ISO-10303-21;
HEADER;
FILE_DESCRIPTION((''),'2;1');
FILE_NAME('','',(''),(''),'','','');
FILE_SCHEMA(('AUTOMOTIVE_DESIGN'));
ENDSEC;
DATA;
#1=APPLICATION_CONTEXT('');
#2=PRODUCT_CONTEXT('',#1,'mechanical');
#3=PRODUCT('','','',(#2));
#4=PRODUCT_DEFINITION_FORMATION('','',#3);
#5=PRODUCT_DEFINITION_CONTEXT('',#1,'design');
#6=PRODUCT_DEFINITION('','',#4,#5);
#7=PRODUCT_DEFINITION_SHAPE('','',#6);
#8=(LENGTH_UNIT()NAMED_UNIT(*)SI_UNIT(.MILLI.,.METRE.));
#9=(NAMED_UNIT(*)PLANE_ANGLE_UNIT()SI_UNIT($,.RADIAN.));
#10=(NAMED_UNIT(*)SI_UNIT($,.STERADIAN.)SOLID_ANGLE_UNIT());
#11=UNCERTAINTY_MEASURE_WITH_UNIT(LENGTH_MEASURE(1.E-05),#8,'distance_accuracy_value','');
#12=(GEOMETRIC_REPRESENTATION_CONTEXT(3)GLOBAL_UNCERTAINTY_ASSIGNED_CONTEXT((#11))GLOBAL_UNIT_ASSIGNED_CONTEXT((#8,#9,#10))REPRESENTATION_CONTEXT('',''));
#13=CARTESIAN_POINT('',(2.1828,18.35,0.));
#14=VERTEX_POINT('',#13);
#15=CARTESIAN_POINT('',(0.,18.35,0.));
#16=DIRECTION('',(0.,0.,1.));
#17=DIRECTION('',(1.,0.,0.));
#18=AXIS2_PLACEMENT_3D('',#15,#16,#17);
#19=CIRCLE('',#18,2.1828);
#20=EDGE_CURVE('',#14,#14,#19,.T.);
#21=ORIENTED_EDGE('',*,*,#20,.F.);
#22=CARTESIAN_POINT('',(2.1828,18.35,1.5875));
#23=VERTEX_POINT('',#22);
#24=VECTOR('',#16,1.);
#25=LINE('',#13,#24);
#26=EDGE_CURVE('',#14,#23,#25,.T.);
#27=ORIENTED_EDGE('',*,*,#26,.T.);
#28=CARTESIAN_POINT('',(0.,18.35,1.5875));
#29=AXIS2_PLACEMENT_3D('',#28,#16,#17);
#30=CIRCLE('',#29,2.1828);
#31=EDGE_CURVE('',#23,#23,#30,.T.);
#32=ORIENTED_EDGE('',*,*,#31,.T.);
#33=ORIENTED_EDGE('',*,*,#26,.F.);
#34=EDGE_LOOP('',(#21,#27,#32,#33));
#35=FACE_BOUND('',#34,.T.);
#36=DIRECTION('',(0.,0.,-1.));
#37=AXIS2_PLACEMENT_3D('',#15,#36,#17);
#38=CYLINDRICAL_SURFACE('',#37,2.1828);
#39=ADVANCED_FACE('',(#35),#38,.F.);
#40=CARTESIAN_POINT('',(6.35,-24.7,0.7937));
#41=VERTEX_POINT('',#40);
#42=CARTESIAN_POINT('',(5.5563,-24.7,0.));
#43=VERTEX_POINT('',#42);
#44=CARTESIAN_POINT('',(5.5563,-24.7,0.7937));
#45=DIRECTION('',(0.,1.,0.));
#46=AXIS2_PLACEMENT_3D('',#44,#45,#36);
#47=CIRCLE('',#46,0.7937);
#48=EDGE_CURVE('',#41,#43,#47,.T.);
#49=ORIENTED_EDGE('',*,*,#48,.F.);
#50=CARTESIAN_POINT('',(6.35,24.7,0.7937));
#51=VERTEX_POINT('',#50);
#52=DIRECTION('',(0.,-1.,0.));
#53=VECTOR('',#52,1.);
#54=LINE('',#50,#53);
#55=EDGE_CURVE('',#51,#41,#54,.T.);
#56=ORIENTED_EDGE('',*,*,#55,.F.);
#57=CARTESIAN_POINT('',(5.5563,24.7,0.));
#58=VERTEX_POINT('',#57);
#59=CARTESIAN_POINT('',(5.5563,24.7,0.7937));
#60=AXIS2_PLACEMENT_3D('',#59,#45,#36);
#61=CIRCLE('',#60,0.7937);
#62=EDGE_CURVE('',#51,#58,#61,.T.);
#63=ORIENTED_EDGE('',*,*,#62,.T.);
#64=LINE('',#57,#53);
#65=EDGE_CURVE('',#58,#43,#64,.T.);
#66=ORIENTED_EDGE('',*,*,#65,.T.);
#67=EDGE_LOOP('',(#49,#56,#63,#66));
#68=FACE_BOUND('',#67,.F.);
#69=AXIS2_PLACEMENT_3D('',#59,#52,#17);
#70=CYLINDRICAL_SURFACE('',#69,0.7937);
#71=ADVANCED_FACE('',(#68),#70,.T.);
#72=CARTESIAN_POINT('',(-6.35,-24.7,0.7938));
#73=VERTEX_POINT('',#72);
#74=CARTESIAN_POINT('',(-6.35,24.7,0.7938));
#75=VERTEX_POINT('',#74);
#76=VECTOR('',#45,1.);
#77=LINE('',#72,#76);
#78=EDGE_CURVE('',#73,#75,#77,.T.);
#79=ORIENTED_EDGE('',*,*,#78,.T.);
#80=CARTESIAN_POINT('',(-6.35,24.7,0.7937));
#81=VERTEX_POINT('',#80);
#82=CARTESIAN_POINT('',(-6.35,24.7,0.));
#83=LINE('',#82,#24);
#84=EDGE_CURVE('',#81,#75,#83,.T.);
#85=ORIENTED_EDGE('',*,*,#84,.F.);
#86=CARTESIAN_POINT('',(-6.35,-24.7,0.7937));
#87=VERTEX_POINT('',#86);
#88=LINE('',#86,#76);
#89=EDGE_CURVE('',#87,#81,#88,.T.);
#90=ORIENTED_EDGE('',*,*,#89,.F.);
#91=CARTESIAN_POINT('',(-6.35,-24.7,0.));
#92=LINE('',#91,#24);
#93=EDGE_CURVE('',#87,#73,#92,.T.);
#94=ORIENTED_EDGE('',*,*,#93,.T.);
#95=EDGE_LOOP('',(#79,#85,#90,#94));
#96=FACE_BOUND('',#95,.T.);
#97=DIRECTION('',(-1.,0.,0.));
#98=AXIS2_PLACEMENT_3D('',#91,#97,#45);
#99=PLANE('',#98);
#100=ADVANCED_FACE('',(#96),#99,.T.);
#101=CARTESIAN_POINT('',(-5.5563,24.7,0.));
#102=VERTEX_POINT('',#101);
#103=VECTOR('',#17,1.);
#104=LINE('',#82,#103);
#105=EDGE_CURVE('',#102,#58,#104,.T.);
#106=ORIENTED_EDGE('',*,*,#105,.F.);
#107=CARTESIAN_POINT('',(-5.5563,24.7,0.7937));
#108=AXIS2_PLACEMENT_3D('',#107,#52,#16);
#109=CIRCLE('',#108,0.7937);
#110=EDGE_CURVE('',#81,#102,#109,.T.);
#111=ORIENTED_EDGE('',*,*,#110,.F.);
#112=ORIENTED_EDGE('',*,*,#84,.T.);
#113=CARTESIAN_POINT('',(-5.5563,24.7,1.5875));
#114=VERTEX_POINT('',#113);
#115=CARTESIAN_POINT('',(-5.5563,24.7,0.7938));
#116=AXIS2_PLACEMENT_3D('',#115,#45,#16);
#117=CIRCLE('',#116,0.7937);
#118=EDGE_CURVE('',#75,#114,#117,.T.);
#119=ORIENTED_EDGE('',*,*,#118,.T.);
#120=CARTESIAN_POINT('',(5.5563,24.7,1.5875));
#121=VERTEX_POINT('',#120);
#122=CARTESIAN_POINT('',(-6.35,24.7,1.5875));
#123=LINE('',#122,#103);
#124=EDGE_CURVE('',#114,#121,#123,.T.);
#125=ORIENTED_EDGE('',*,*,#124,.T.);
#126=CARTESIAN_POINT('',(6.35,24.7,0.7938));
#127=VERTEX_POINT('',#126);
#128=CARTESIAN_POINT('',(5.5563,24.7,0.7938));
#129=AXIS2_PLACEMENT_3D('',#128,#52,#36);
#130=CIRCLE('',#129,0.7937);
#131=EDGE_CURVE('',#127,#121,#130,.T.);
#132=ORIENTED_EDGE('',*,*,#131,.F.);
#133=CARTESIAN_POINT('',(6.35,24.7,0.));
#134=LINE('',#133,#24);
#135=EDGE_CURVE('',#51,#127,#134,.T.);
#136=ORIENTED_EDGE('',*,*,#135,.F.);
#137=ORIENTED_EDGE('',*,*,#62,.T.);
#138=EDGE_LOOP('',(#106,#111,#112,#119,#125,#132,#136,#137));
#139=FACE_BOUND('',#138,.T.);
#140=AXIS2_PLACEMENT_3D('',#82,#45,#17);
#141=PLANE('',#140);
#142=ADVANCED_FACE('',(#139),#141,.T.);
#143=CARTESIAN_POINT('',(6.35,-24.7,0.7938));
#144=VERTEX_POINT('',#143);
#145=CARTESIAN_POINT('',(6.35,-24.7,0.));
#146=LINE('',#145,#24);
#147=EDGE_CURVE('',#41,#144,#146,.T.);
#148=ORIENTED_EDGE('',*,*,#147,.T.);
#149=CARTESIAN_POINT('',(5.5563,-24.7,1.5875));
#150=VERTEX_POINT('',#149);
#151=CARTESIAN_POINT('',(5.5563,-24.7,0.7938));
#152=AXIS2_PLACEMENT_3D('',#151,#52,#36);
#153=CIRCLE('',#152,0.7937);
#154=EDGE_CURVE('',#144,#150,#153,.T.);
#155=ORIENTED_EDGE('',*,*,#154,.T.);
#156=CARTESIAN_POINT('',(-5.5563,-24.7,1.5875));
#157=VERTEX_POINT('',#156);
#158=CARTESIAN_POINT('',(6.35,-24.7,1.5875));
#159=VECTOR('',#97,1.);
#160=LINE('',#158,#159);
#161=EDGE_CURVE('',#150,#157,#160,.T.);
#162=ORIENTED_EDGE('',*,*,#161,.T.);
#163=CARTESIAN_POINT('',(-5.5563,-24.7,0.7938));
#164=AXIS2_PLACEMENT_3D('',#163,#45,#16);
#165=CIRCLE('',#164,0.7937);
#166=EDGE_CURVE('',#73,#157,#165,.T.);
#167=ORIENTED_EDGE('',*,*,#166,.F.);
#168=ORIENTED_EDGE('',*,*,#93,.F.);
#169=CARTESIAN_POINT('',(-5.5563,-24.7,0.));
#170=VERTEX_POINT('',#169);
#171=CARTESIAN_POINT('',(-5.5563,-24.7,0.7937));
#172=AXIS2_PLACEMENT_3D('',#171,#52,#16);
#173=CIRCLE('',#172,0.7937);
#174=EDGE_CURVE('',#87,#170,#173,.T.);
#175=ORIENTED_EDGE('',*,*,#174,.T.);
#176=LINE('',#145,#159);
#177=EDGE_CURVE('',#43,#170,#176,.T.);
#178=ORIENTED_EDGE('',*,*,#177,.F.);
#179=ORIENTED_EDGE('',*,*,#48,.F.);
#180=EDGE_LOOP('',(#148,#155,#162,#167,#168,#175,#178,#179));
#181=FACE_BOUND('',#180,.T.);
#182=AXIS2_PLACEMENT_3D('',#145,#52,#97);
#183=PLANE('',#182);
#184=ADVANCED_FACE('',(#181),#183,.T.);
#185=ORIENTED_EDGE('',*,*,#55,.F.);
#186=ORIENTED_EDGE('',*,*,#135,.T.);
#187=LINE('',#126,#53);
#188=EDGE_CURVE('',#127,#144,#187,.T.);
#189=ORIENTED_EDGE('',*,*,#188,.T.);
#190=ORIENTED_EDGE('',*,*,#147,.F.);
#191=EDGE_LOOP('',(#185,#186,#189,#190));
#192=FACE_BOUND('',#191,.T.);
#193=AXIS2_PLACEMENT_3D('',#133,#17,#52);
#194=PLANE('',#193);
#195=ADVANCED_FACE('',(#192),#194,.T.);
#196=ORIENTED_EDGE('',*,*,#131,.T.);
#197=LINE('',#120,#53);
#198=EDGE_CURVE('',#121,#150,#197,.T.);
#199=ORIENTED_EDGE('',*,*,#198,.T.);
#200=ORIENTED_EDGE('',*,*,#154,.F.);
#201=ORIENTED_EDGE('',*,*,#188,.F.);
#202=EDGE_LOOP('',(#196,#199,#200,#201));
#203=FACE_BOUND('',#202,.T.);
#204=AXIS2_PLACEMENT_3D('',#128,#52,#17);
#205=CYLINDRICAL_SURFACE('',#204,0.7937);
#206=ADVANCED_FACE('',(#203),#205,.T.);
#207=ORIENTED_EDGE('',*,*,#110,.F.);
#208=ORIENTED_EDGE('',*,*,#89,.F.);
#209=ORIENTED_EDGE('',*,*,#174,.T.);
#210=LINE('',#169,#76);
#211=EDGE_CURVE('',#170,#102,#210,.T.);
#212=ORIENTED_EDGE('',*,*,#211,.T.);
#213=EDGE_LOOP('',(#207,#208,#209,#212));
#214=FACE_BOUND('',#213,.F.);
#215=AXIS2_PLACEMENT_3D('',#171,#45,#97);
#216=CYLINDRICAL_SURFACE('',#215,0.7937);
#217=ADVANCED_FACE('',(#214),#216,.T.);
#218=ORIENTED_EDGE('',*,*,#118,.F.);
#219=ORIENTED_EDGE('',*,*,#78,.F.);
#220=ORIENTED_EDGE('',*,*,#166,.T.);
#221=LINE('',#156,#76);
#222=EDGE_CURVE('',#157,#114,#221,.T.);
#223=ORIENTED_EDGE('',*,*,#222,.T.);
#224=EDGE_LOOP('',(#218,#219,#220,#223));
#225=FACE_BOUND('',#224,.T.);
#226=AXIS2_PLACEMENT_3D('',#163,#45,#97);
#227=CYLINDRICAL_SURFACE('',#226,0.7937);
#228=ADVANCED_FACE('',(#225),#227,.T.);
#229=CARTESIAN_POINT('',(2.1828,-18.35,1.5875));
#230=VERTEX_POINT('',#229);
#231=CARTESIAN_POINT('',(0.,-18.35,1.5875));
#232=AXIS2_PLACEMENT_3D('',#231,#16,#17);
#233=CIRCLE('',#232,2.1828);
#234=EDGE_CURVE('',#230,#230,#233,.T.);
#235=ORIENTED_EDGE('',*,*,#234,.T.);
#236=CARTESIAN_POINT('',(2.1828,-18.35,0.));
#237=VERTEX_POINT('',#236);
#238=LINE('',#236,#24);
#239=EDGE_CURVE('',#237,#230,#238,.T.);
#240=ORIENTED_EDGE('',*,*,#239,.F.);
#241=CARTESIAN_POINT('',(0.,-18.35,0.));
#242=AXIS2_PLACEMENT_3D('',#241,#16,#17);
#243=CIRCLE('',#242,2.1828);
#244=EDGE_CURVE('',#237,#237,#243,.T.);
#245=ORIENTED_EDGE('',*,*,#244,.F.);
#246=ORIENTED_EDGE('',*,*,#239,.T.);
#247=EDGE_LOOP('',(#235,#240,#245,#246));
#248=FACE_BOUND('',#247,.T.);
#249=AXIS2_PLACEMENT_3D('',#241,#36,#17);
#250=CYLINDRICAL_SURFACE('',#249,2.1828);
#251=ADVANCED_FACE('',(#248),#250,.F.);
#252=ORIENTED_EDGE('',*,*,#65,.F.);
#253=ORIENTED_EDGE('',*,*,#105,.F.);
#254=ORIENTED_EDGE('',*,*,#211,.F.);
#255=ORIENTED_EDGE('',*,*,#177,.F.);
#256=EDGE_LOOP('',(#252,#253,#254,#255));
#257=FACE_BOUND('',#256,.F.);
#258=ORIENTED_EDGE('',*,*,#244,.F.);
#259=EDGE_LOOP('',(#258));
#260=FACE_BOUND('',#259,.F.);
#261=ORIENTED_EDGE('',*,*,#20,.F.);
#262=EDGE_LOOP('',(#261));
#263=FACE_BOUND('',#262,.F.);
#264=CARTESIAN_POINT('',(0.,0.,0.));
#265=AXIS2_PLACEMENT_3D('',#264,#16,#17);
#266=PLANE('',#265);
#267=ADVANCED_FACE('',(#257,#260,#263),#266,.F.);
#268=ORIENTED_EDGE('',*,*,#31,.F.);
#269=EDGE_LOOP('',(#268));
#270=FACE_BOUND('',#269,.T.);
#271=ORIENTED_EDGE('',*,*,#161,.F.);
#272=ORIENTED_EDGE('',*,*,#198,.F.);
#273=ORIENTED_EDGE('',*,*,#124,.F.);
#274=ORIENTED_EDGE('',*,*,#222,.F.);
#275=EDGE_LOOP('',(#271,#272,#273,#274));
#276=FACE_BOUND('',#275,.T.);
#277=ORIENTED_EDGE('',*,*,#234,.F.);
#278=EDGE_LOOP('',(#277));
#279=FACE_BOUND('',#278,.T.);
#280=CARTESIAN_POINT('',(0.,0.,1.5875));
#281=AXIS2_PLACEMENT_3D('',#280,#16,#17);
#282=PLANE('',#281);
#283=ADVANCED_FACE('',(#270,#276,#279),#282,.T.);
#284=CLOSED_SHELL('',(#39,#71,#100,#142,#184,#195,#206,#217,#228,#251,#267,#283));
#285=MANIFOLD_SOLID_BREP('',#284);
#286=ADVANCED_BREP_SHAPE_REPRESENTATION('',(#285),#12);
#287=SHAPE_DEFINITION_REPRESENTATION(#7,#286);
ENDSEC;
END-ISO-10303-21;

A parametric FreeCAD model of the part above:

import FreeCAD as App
import Part
import Sketcher
Q = App.Units.Quantity


def edges_at(feature, points):
    """Names of the edges that pass closest to the given points."""
    edges = feature.Shape.Edges
    near = lambda p: min(range(len(edges)), key=lambda i: edges[i].distToShape(Part.Vertex(*p))[0])
    return sorted({f"Edge{near(p) + 1}" for p in points})

doc = App.newDocument("Part")
body = doc.addObject("PartDesign::Body", "Body")

sketch1 = doc.addObject("Sketcher::SketchObject", "Sketch")
body.addObject(sketch1)
sketch1.AttachmentSupport = (doc.XY_Plane, [""])
sketch1.MapMode = "FlatFace"
sketch1.addGeometry(Part.LineSegment(App.Vector(-6.35, -24.7, 0), App.Vector(6.35, -24.7, 0)), False)
sketch1.addGeometry(Part.LineSegment(App.Vector(6.35, -24.7, 0), App.Vector(6.35, 24.7, 0)), False)
sketch1.addGeometry(Part.LineSegment(App.Vector(6.35, 24.7, 0), App.Vector(-6.35, 24.7, 0)), False)
sketch1.addGeometry(Part.LineSegment(App.Vector(-6.35, 24.7, 0), App.Vector(-6.35, -24.7, 0)), False)
sketch1.addGeometry(Part.Circle(App.Vector(0, -18.35, 0), App.Vector(0, 0, 1), 2.1828), False)
sketch1.addGeometry(Part.Circle(App.Vector(0, 18.35, 0), App.Vector(0, 0, 1), 2.1828), False)
sketch1.addConstraint(Sketcher.Constraint("Coincident", 0, 2, 1, 1))
sketch1.addConstraint(Sketcher.Constraint("Coincident", 1, 2, 2, 1))
sketch1.addConstraint(Sketcher.Constraint("Coincident", 2, 2, 3, 1))
sketch1.addConstraint(Sketcher.Constraint("Coincident", 3, 2, 0, 1))
sketch1.addConstraint(Sketcher.Constraint("Horizontal", 0))
sketch1.addConstraint(Sketcher.Constraint("Vertical", 1))
sketch1.addConstraint(Sketcher.Constraint("Horizontal", 2))
sketch1.addConstraint(Sketcher.Constraint("Vertical", 3))
sketch1.addConstraint(Sketcher.Constraint("Equal", 4, 5))
sketch1.addConstraint(Sketcher.Constraint("Symmetric", 4, 3, 5, 3, -1, 1))
sketch1.addConstraint(Sketcher.Constraint("Symmetric", 0, 2, 2, 2, -1, 1))
sketch1.addConstraint(Sketcher.Constraint("PointOnObject", 4, 3, -2))
sketch1.addConstraint(Sketcher.Constraint("Diameter", 4, Q("0.171874 in")))
sketch1.addConstraint(Sketcher.Constraint("DistanceX", 0, 1, 0, 2, Q("0.5 in")))
sketch1.addConstraint(Sketcher.Constraint("DistanceY", 0, 2, 4, 3, Q("0.25 in")))
sketch1.addConstraint(Sketcher.Constraint("DistanceY", 4, 3, -1, 1, Q("18.35 mm")))
pad1 = doc.addObject("PartDesign::Pad", "Pad")
body.addObject(pad1)
pad1.Profile = sketch1
pad1.Length = Q("0.0625 in")
doc.recompute()

fillet = doc.addObject("PartDesign::Fillet", "Fillet")
body.addObject(fillet)
fillet.Base = (pad1, edges_at(pad1, [
    (-6.35, 0, 0),
    (-6.35, 0, 1.587),
    (6.35, 0, 0),
    (6.35, 0, 1.587),
]))
fillet.Radius = Q("0.031248 in")

doc.recompute()
